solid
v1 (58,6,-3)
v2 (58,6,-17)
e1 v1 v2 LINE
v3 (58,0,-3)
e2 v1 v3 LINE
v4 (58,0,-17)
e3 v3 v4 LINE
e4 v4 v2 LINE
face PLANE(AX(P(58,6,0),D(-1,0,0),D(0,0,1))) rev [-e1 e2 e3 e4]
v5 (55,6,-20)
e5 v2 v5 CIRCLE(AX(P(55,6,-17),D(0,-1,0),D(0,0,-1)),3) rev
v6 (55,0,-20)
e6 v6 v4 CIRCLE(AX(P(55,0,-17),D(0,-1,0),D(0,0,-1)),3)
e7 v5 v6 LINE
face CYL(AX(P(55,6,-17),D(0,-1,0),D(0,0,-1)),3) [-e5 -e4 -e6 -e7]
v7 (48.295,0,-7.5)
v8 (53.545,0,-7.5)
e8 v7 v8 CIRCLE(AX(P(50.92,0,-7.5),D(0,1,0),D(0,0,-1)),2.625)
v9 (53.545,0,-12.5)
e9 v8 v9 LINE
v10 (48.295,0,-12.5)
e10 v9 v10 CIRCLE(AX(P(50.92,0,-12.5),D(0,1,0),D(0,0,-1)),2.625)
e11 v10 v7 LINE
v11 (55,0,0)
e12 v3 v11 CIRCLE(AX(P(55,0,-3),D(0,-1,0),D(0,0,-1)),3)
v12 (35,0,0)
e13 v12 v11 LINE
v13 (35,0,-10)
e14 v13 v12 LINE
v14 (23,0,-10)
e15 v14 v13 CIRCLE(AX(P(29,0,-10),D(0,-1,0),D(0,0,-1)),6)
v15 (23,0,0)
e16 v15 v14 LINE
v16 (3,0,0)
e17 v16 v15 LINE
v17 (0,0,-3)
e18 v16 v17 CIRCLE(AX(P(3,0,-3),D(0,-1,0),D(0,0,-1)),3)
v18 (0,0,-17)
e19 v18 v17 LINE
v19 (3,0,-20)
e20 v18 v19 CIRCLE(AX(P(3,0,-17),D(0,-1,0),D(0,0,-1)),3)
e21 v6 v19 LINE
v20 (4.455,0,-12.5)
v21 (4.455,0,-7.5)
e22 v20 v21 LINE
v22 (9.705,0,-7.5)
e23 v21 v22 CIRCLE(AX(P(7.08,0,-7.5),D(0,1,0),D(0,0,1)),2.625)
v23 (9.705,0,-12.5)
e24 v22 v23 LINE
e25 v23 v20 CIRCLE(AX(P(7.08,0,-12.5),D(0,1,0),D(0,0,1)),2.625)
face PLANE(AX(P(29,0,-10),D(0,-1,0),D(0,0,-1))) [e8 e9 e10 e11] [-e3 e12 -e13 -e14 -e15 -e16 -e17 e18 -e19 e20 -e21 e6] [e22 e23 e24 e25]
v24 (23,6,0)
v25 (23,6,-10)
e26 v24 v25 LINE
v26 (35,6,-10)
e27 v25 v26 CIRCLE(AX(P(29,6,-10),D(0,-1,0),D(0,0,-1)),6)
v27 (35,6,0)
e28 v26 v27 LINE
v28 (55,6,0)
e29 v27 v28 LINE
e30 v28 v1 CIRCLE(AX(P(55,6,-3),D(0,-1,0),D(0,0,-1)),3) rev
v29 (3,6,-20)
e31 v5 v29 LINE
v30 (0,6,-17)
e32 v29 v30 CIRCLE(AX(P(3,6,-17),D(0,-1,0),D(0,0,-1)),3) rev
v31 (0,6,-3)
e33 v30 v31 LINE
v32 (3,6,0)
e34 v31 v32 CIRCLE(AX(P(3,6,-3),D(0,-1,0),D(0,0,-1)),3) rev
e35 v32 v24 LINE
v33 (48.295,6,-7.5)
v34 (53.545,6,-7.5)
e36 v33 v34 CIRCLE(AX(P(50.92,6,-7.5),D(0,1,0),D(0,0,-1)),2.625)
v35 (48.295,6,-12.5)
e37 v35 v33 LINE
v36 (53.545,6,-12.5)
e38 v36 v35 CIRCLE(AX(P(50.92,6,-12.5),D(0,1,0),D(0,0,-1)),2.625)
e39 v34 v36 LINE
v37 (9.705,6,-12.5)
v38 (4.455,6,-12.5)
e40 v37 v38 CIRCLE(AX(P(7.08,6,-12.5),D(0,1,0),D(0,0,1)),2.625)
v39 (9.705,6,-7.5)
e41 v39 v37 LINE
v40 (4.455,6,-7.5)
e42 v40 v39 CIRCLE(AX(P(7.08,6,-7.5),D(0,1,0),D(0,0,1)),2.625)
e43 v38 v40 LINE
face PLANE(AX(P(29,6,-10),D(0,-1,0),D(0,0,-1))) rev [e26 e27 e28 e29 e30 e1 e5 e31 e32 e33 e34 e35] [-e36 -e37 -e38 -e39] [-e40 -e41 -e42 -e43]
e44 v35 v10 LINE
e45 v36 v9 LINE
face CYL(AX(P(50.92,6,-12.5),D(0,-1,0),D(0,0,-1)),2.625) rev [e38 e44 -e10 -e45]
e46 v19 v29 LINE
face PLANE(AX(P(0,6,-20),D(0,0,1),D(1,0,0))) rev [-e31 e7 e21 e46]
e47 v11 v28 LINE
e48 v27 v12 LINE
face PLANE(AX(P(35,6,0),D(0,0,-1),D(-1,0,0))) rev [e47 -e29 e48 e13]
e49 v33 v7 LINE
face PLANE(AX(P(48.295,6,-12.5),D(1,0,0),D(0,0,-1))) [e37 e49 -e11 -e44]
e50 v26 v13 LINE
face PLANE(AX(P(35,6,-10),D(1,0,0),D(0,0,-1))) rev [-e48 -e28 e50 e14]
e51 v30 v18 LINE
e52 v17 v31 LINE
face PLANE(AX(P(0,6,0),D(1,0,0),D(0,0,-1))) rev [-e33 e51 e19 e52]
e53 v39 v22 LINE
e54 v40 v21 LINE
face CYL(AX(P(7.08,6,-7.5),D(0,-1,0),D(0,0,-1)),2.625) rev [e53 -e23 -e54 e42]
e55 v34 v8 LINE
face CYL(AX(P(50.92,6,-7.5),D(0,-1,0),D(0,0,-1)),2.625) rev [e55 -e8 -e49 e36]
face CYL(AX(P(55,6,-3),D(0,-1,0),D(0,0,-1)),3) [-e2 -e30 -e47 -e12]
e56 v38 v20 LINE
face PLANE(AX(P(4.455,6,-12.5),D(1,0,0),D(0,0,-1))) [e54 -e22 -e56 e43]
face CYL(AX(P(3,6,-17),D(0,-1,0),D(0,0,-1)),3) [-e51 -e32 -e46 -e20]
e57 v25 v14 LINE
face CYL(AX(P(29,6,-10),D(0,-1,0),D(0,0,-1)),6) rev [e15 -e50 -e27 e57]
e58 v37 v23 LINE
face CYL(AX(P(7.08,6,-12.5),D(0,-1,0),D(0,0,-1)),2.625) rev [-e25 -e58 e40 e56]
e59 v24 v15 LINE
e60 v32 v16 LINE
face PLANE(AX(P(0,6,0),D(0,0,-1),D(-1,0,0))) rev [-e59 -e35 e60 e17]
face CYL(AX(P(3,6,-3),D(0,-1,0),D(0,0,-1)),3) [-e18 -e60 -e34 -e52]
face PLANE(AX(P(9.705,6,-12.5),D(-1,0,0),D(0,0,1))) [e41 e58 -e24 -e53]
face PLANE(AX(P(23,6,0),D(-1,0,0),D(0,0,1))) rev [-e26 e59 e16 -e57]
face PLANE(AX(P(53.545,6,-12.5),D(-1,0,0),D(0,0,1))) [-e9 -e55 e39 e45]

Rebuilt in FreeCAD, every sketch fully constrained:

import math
import FreeCAD as App
import Part
import Sketcher

V = App.Vector
Q = App.Units.Quantity


def edges_at(feature, points):
    """Names of the edges that pass closest to the given points."""
    edges = feature.Shape.Edges
    near = lambda p: min(range(len(edges)), key=lambda i: edges[i].distToShape(Part.Vertex(*p))[0])
    return sorted({f"Edge{near(p) + 1}" for p in points})

doc = App.newDocument("Part")
params = doc.addObject("Spreadsheet::Sheet", "Params")
for row, (alias, value) in enumerate([
    ("sketch1_radius", "6 mm"),
    ("sketch1_width", "23 mm"),
    ("sketch1_height", "10 mm"),
    ("sketch1_height2", "20 mm"),
    ("sketch1_height3", "5 mm"),
    ("pad1_length", "6 mm"),
    ("fillet_radius", "3 mm"),
], start=1):
    params.set(f"A{row}", alias)
    params.set(f"B{row}", "=" + value)
    params.setAlias(f"B{row}", alias)

body = doc.addObject("PartDesign::Body", "Body")

sketch1 = body.newObject("Sketcher::SketchObject", "Sketch")
sketch1.AttachmentSupport = (doc.getObject("XZ_Plane"), [""])
sketch1.MapMode = "FlatFace"
sketch1.addGeometry([
    Part.LineSegment(V(0, 0, 0), V(23, 0, 0)),
    Part.LineSegment(V(23, 0, 0), V(23, -10, 0)),
    Part.ArcOfCircle(Part.Circle(V(29, -10, 0), V(0, 0, 1), 6), math.radians(180), math.radians(360)),
    Part.LineSegment(V(35, -10, 0), V(35, 0, 0)),
    Part.LineSegment(V(35, 0, 0), V(58, 0, 0)),
    Part.LineSegment(V(58, 0, 0), V(58, -20, 0)),
    Part.LineSegment(V(58, -20, 0), V(0, -20, 0)),
    Part.LineSegment(V(0, -20, 0), V(0, 0, 0)),
    Part.ArcOfCircle(Part.Circle(V(7.1, -12.5, 0), V(0, 0, 1), 2.6), math.radians(180), math.radians(360)),
    Part.LineSegment(V(9.7, -12.5, 0), V(9.7, -7.5, 0)),
    Part.ArcOfCircle(Part.Circle(V(7.1, -7.5, 0), V(0, 0, 1), 2.6), math.radians(0), math.radians(180)),
    Part.LineSegment(V(4.5, -7.5, 0), V(4.5, -12.5, 0)),
    Part.LineSegment(V(48.3, -7.5, 0), V(48.3, -12.5, 0)),
    Part.ArcOfCircle(Part.Circle(V(50.9, -12.5, 0), V(0, 0, 1), 2.6), math.radians(180), math.radians(360)),
    Part.LineSegment(V(53.5, -12.5, 0), V(53.5, -7.5, 0)),
    Part.ArcOfCircle(Part.Circle(V(50.9, -7.5, 0), V(0, 0, 1), 2.6), math.radians(0), math.radians(180)),
], False)
sketch1.addConstraint([
    Sketcher.Constraint("Coincident", 0, 2, 1, 1),
    Sketcher.Constraint("Tangent", 1, 2, 2, 1),
    Sketcher.Constraint("Tangent", 2, 2, 3, 1),
    Sketcher.Constraint("Coincident", 3, 2, 4, 1),
    Sketcher.Constraint("Coincident", 4, 2, 5, 1),
    Sketcher.Constraint("Coincident", 5, 2, 6, 1),
    Sketcher.Constraint("Coincident", 6, 2, 7, 1),
    Sketcher.Constraint("Coincident", 7, 2, 0, 1),
    Sketcher.Constraint("Tangent", 8, 2, 9, 1),
    Sketcher.Constraint("Tangent", 9, 2, 10, 1),
    Sketcher.Constraint("Tangent", 10, 2, 11, 1),
    Sketcher.Constraint("Tangent", 11, 2, 8, 1),
    Sketcher.Constraint("Tangent", 12, 2, 13, 1),
    Sketcher.Constraint("Tangent", 13, 2, 14, 1),
    Sketcher.Constraint("Tangent", 14, 2, 15, 1),
    Sketcher.Constraint("Tangent", 15, 2, 12, 1),
    Sketcher.Constraint("Horizontal", 0),
    Sketcher.Constraint("Vertical", 1),
    Sketcher.Constraint("Vertical", 3),
    Sketcher.Constraint("Horizontal", 4),
    Sketcher.Constraint("Vertical", 5),
    Sketcher.Constraint("Horizontal", 6),
    Sketcher.Constraint("Vertical", 7),
    Sketcher.Constraint("Vertical", 9),
    Sketcher.Constraint("Vertical", 11),
    Sketcher.Constraint("Vertical", 12),
    Sketcher.Constraint("Vertical", 14),
    Sketcher.Constraint("Coincident", 7, 2, -1, 1),
    Sketcher.Constraint("Equal", 10, 13),
    Sketcher.Constraint("PointOnObject", 3, 2, -1),
    Sketcher.Constraint("Horizontal", 8, 3, 13, 3),
    Sketcher.Constraint("Horizontal", 10, 3, 15, 3),
    Sketcher.Constraint("Equal", 0, 4),
    Sketcher.Constraint("Radius", 2, Q("6 mm")),
    Sketcher.Constraint("DistanceX", 0, 1, 0, 2, Q("23 mm")),
    Sketcher.Constraint("DistanceY", 1, 2, 1, 1, Q("10 mm")),
    Sketcher.Constraint("DistanceY", 5, 2, 5, 1, Q("20 mm")),
    Sketcher.Constraint("DistanceY", 9, 1, 9, 2, Q("5 mm")),
    Sketcher.Constraint("Radius", 8, Q("2.625 mm")),
    Sketcher.Constraint("DistanceY", 8, 3, -1, 1, Q("12.5 mm")),
    Sketcher.Constraint("DistanceX", -1, 1, 8, 3, Q("7.08 mm")),
    Sketcher.Constraint("DistanceX", -1, 1, 13, 3, Q("50.92 mm")),
])
sketch1.setExpression("Constraints[33]", "Params.sketch1_radius")
sketch1.setExpression("Constraints[34]", "Params.sketch1_width")
sketch1.setExpression("Constraints[35]", "Params.sketch1_height")
sketch1.setExpression("Constraints[36]", "Params.sketch1_height2")
sketch1.setExpression("Constraints[37]", "Params.sketch1_height3")
pad1 = body.newObject("PartDesign::Pad", "Pad")
pad1.Profile = sketch1
pad1.setExpression("Length", "Params.pad1_length")
pad1.Reversed = True
doc.recompute()

fillet = body.newObject("PartDesign::Fillet", "Fillet")
fillet.Base = (pad1, edges_at(pad1, [
    (0, 3, -20),
    (58, 3, -20),
    (58, 3, 0),
    (0, 3, 0),
]))
fillet.setExpression("Radius", "Params.fillet_radius")

doc.recompute()
